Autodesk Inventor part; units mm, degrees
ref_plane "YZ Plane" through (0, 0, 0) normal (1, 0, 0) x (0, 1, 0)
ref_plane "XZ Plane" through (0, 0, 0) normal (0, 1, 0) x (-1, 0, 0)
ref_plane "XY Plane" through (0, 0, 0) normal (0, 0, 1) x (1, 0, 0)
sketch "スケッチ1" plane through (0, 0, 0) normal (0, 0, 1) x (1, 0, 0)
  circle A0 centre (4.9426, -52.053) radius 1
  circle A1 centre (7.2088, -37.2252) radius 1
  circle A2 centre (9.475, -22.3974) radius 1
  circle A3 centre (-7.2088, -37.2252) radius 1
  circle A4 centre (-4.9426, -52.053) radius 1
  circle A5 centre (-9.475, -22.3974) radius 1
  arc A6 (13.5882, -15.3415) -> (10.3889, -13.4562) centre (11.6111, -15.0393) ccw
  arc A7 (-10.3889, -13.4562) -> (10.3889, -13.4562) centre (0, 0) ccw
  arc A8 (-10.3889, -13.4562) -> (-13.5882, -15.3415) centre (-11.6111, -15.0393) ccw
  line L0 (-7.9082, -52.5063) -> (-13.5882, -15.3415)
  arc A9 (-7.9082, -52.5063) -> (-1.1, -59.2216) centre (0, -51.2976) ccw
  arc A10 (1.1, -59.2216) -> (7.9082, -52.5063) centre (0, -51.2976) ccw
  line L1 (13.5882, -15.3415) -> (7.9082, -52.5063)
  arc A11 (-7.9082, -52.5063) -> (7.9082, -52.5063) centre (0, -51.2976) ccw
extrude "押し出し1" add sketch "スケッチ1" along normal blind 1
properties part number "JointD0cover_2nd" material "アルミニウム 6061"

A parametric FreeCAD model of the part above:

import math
import FreeCAD as App
import Part
import Sketcher
Q = App.Units.Quantity

doc = App.newDocument("Part")
params = doc.addObject("Spreadsheet::Sheet", "Params")
for row, (alias, value) in enumerate([
    ("sketch1_diameter", "2 mm"),
    ("sketch1_radius", "2 mm"),
    ("sketch1_radius2", "17 mm"),
    ("sketch1_radius3", "8 mm"),
    ("pad1_length", "1 mm"),
], start=1):
    params.set(f"A{row}", alias)
    params.set(f"B{row}", "=" + value)
    params.setAlias(f"B{row}", alias)

body = doc.addObject("PartDesign::Body", "Body")

sketch1 = doc.addObject("Sketcher::SketchObject", "Sketch")
body.addObject(sketch1)
sketch1.AttachmentSupport = (doc.XY_Plane, [""])
sketch1.MapMode = "FlatFace"
sketch1.addGeometry([
    Part.LineSegment(App.Vector(7.9, -52.5, 0), App.Vector(13.6, -15.3, 0)),
    Part.ArcOfCircle(Part.Circle(App.Vector(11.6, -15, 0), App.Vector(0, 0, 1), 2), math.radians(-9), math.radians(128)),
    Part.ArcOfCircle(Part.Circle(App.Vector(0, 0, 0), App.Vector(0, 0, 1), 17), math.radians(-128), math.radians(-52)),
    Part.ArcOfCircle(Part.Circle(App.Vector(-11.6, -15, 0), App.Vector(0, 0, 1), 2), math.radians(52), math.radians(189)),
    Part.LineSegment(App.Vector(-13.6, -15.3, 0), App.Vector(-7.9, -52.5, 0)),
    Part.ArcOfCircle(Part.Circle(App.Vector(0, -51.3, 0), App.Vector(0, 0, 1), 8), math.radians(-171), math.radians(-98)),
    Part.ArcOfCircle(Part.Circle(App.Vector(0, -51.3, 0), App.Vector(0, 0, 1), 8), math.radians(-97.9), math.radians(-82.1)),
    Part.ArcOfCircle(Part.Circle(App.Vector(0, -51.3, 0), App.Vector(0, 0, 1), 8), math.radians(-82), math.radians(-9)),
    Part.Circle(App.Vector(-4.9, -52.1, 0), App.Vector(0, 0, 1), 1),
    Part.Circle(App.Vector(-7.2, -37.2, 0), App.Vector(0, 0, 1), 1),
    Part.Circle(App.Vector(4.9, -52.1, 0), App.Vector(0, 0, 1), 1),
    Part.Circle(App.Vector(7.2, -37.2, 0), App.Vector(0, 0, 1), 1),
    Part.Circle(App.Vector(-9.5, -22.4, 0), App.Vector(0, 0, 1), 1),
    Part.Circle(App.Vector(9.5, -22.4, 0), App.Vector(0, 0, 1), 1),
], False)
sketch1.addConstraint([
    Sketcher.Constraint("Tangent", 0, 2, 1, 1),
    Sketcher.Constraint("Tangent", 1, 2, 2, 2),
    Sketcher.Constraint("Tangent", 2, 1, 3, 1),
    Sketcher.Constraint("Tangent", 3, 2, 4, 1),
    Sketcher.Constraint("Tangent", 4, 2, 5, 1),
    Sketcher.Constraint("Tangent", 5, 2, 6, 1),
    Sketcher.Constraint("Tangent", 6, 2, 7, 1),
    Sketcher.Constraint("Tangent", 7, 2, 0, 1),
    Sketcher.Constraint("Coincident", 2, 3, -1, 1),
    Sketcher.Constraint("Coincident", 7, 3, 5, 3),
    Sketcher.Constraint("Equal", 1, 3),
    Sketcher.Constraint("Equal", 8, 9),
    Sketcher.Constraint("Equal", 9, 10),
    Sketcher.Constraint("Equal", 10, 11),
    Sketcher.Constraint("Equal", 11, 12),
    Sketcher.Constraint("Equal", 12, 13),
    Sketcher.Constraint("Symmetric", 8, 3, 10, 3, -2),
    Sketcher.Constraint("Symmetric", 9, 3, 11, 3, -2),
    Sketcher.Constraint("Symmetric", 12, 3, 13, 3, -2),
    Sketcher.Constraint("Symmetric", 0, 2, 3, 2, -2),
    Sketcher.Constraint("Horizontal", 5, 2, 6, 2),
    Sketcher.Constraint("Diameter", 8, Q("2 mm")),
    Sketcher.Constraint("Radius", 1, Q("2 mm")),
    Sketcher.Constraint("Radius", 2, Q("17 mm")),
    Sketcher.Constraint("Radius", 5, Q("8 mm")),
    Sketcher.Constraint("DistanceX", 5, 2, -1, 1, Q("1.1 mm")),
    Sketcher.Constraint("Angle", 0, Q("81.3106 deg")),
    Sketcher.Constraint("DistanceX", 12, 3, 13, 3, Q("18.95 mm")),
    Sketcher.Constraint("DistanceX", -1, 1, 1, 3, Q("11.611 mm")),
    Sketcher.Constraint("DistanceY", 8, 3, -1, 1, Q("52.053 mm")),
    Sketcher.Constraint("DistanceY", 9, 3, 3, 3, Q("22.186 mm")),
    Sketcher.Constraint("DistanceY", 12, 3, 3, 3, Q("7.358 mm")),
    Sketcher.Constraint("DistanceX", 8, 3, -1, 1, Q("4.9426 mm")),
    Sketcher.Constraint("DistanceX", 9, 3, -1, 1, Q("7.2088 mm")),
])
sketch1.setExpression("Constraints[21]", "Params.sketch1_diameter")
sketch1.setExpression("Constraints[22]", "Params.sketch1_radius")
sketch1.setExpression("Constraints[23]", "Params.sketch1_radius2")
sketch1.setExpression("Constraints[24]", "Params.sketch1_radius3")
pad1 = doc.addObject("PartDesign::Pad", "Pad")
body.addObject(pad1)
pad1.Profile = sketch1
pad1.setExpression("Length", "Params.pad1_length")

doc.recompute()
